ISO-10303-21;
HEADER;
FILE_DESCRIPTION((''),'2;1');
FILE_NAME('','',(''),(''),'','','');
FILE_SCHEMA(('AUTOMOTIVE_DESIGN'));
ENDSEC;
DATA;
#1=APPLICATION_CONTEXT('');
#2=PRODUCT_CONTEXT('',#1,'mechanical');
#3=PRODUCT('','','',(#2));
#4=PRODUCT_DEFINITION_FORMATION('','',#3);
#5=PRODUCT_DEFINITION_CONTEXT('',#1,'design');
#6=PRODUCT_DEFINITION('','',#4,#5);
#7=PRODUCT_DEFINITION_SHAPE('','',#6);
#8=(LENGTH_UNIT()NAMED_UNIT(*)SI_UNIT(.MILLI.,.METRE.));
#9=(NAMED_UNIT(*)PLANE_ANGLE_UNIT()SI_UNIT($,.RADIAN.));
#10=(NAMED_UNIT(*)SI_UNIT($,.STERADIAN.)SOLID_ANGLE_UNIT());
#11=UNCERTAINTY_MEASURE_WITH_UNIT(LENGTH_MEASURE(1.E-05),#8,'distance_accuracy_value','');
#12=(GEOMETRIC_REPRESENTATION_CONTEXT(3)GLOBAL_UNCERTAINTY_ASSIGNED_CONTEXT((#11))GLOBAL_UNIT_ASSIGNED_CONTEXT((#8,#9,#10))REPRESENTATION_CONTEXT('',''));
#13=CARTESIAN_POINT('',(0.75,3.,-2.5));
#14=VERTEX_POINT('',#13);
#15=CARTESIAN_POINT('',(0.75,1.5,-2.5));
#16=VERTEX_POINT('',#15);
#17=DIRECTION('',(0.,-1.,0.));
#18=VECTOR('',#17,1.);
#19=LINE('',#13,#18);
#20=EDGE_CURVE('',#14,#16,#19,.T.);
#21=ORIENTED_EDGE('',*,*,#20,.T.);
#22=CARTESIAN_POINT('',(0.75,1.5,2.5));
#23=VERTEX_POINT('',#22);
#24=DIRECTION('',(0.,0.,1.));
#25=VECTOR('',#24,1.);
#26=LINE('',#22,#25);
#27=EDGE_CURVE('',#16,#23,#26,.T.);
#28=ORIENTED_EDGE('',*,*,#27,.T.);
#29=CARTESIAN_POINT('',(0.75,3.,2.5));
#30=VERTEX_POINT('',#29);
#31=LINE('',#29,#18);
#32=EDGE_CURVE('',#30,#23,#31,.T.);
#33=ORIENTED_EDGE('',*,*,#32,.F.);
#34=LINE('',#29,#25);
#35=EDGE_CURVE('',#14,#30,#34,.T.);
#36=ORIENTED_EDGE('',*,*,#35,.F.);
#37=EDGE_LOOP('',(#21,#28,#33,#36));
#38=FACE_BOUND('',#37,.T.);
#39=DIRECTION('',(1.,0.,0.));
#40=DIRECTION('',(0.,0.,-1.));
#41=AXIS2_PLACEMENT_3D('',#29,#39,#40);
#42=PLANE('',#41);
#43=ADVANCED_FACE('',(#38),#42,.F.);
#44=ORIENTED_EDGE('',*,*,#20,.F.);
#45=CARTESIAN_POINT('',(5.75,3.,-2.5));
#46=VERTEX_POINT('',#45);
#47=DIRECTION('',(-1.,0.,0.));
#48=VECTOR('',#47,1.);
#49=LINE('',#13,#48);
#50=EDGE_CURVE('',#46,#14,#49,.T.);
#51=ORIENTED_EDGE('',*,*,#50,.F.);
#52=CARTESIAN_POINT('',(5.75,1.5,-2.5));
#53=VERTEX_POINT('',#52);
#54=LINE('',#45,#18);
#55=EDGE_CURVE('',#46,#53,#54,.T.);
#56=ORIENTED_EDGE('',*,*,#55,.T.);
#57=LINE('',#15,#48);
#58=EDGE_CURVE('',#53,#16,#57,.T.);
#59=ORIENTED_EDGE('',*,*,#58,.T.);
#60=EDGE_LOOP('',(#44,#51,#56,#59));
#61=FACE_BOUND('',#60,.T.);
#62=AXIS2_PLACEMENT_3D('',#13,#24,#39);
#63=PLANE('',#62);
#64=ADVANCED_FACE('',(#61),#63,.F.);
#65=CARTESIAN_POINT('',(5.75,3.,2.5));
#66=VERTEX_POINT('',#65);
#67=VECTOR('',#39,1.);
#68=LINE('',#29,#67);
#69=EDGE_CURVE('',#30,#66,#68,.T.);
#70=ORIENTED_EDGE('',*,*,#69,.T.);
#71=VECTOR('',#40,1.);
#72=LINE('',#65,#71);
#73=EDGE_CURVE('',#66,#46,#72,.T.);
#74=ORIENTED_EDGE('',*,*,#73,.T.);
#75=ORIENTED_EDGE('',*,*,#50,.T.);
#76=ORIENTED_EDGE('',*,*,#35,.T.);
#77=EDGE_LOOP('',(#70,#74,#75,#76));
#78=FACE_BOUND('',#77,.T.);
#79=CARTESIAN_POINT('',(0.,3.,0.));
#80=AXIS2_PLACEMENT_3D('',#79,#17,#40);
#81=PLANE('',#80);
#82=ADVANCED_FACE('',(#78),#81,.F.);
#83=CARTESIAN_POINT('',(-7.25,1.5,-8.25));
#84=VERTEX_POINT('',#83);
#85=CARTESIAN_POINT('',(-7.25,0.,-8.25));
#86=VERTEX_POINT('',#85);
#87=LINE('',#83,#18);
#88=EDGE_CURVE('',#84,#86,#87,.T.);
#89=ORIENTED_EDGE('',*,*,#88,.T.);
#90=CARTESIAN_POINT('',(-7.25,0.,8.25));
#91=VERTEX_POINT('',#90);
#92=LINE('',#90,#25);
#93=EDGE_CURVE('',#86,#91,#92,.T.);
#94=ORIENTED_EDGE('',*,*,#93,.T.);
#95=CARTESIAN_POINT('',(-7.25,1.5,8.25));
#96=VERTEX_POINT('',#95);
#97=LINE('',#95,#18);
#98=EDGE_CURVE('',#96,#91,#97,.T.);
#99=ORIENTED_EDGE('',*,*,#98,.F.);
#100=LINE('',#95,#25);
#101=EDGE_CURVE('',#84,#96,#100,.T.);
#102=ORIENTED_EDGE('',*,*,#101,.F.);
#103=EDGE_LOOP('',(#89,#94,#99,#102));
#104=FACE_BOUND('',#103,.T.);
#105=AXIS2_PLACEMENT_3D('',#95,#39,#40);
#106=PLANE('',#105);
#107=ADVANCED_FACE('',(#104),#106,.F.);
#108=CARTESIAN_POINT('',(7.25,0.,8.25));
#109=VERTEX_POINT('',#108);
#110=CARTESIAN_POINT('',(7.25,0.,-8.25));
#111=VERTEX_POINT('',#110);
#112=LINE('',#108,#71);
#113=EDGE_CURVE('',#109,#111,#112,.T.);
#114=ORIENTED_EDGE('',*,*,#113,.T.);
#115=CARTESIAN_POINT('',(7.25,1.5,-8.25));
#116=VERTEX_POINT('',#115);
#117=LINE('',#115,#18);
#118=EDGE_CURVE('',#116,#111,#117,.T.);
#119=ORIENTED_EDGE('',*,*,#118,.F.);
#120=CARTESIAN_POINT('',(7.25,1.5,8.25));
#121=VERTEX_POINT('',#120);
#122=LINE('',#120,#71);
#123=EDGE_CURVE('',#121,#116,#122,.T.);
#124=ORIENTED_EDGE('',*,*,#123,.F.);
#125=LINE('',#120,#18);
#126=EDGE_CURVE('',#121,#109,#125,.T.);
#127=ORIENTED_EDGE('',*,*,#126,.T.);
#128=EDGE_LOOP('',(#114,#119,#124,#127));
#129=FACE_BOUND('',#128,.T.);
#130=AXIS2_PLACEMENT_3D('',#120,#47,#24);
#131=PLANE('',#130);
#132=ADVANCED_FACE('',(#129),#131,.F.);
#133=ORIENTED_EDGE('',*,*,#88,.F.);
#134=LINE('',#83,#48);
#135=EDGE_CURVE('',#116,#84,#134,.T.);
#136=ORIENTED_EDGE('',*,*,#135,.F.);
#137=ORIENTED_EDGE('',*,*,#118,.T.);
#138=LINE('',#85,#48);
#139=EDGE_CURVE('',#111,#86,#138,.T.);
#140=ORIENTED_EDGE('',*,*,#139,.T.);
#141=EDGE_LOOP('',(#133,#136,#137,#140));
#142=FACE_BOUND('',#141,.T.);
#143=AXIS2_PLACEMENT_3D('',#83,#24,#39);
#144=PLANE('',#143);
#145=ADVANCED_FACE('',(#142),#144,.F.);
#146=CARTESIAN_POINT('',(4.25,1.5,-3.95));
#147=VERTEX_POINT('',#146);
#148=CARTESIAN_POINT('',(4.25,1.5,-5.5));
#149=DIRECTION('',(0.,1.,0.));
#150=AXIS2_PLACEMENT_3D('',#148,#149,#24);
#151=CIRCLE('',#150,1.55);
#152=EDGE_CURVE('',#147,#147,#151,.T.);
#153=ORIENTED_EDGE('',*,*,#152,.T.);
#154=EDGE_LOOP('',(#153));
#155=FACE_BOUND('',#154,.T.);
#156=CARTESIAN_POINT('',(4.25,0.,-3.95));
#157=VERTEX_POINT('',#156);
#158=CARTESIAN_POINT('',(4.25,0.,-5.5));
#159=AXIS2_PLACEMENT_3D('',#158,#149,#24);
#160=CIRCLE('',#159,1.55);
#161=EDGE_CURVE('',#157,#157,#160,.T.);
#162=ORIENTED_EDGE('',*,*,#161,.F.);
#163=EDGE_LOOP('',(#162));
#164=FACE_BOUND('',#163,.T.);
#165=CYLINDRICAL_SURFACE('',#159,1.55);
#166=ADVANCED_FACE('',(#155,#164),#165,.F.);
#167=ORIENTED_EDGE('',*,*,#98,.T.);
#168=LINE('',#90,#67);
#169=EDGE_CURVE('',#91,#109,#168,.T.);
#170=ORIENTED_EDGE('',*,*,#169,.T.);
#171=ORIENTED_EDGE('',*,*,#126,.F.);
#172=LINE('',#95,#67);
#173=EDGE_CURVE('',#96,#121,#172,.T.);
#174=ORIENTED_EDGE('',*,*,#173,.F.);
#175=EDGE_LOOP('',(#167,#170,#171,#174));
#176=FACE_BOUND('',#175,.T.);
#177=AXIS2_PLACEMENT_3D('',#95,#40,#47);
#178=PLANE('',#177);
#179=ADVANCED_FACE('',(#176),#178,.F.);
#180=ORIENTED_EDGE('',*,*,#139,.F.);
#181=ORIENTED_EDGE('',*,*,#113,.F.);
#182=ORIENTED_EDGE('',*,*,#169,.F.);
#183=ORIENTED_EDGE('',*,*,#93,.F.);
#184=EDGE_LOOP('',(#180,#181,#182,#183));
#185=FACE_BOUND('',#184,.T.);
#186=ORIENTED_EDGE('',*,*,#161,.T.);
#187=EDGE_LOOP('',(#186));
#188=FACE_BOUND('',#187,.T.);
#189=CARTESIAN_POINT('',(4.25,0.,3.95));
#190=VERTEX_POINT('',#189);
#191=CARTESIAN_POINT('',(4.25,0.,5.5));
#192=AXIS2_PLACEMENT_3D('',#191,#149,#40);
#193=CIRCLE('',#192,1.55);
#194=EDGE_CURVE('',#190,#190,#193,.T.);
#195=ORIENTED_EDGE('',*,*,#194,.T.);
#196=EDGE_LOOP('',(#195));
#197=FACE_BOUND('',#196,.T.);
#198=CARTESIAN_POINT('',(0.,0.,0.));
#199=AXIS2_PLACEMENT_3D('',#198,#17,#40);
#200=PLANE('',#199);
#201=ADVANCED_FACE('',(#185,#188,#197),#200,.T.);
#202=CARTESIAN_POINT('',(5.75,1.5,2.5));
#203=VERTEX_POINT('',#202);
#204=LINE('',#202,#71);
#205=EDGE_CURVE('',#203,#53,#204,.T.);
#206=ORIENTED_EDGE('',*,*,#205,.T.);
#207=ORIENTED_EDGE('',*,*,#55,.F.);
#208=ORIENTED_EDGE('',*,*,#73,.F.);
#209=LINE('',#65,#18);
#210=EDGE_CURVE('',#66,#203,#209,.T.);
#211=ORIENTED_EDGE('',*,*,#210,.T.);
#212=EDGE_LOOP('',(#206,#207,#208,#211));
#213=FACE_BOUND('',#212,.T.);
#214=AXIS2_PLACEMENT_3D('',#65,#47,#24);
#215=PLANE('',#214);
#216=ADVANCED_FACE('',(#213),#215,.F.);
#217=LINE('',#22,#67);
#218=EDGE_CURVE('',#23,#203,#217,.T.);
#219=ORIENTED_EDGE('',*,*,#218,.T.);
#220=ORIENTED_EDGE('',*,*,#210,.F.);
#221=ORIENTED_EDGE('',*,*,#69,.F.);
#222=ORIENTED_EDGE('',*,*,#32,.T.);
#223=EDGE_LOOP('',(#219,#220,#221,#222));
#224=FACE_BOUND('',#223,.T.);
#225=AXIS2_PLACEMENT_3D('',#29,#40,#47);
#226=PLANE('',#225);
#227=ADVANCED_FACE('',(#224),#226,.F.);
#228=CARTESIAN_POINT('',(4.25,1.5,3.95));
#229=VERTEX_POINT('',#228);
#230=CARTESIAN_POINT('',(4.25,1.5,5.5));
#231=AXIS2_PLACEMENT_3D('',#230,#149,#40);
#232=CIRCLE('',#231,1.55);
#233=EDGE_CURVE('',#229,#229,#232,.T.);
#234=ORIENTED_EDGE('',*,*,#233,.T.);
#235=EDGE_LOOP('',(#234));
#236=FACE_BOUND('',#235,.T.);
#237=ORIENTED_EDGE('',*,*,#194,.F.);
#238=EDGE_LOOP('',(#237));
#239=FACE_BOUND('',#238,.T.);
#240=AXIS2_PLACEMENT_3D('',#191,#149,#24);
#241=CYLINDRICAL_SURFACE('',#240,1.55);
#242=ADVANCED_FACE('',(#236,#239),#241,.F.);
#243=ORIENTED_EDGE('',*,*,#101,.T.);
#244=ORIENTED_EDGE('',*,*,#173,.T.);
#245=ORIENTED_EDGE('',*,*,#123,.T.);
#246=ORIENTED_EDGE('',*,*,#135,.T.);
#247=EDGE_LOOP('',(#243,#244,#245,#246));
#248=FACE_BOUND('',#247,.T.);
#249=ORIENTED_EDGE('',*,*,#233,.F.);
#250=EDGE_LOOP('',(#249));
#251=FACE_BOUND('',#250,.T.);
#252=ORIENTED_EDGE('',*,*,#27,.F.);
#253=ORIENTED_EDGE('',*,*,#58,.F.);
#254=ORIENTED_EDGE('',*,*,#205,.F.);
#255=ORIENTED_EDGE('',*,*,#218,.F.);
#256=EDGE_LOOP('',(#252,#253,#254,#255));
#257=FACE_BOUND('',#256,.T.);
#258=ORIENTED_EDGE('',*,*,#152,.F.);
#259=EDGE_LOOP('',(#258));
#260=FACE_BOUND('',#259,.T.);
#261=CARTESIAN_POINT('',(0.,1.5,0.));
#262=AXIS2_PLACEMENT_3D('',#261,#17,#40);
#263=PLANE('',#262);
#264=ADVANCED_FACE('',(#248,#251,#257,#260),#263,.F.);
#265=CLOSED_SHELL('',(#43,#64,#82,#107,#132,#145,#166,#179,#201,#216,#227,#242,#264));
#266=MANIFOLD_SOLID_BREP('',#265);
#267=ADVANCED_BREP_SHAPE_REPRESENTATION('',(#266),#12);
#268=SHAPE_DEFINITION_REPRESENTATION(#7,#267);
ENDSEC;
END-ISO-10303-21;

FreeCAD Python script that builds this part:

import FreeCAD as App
import Part
import Sketcher

V = App.Vector


def add_polygon(sketch, points):
    """Adds a closed chain of lines whose ends are joined by coincident constraints."""
    first, n = sketch.GeometryCount, len(points)
    for a, b in zip(points, points[1:] + points[:1]):
        sketch.addGeometry(Part.LineSegment(App.Vector(*a, 0), App.Vector(*b, 0)), False)
    for i in range(n):
        sketch.addConstraint(Sketcher.Constraint("Coincident", first + i, 2, first + (i + 1) % n, 1))

doc = App.newDocument("Part")
params = doc.addObject("Spreadsheet::Sheet", "Params")
for row, (alias, value) in enumerate([
    ("sketch1_width", "14.5 mm"),
    ("sketch1_height", "16.5 mm"),
    ("pad1_length", "1.5 mm"),
    ("sketch2_diameter", "3.1 mm"),
    ("sketch3_width", "5 mm"),
    ("pad2_length", "1.5 mm"),
], start=1):
    params.set(f"A{row}", alias)
    params.set(f"B{row}", "=" + value)
    params.setAlias(f"B{row}", alias)

body = doc.addObject("PartDesign::Body", "Body")

# Sketch on XZ plane
sketch1 = doc.addObject("Sketcher::SketchObject", "Sketch")
body.addObject(sketch1)
sketch1.AttachmentSupport = (doc.XZ_Plane, [""])
sketch1.MapMode = "FlatFace"
add_polygon(sketch1, [(-7, -8), (-7, 8), (7, 8), (7, -8)])  # lines 0-3
sketch1.addConstraint([
    Sketcher.Constraint("Vertical", 0),
    Sketcher.Constraint("Horizontal", 1),
    Sketcher.Constraint("Vertical", 2),
    Sketcher.Constraint("Horizontal", 3),
    Sketcher.Constraint("Symmetric", 0, 2, 2, 2, -1, 1),
    Sketcher.Constraint("DistanceX", 1, 1, 1, 2, 14.5),
    Sketcher.Constraint("DistanceY", 0, 1, 0, 2, 16.5),
])
sketch1.setExpression("Constraints[9]", "Params.sketch1_width")
sketch1.setExpression("Constraints[10]", "Params.sketch1_height")
pad1 = doc.addObject("PartDesign::Pad", "Pad")
body.addObject(pad1)
pad1.Profile = sketch1
pad1.setExpression("Length", "Params.pad1_length")
pad1.Reversed = True

# Sketch on XZ plane
sketch2 = doc.addObject("Sketcher::SketchObject", "Sketch001")
body.addObject(sketch2)
sketch2.AttachmentSupport = (doc.XZ_Plane, [""])
sketch2.MapMode = "FlatFace"
sketch2.AttachmentOffset = App.Placement(V(0, 0, -1.5), App.Rotation())
sketch2.addGeometry([
    Part.Circle(V(4.2, -5.5, 0), V(0, 0, 1), 1.6),
    Part.Circle(V(4.2, 5.5, 0), V(0, 0, 1), 1.6),
], False)
sketch2.addConstraint([
    Sketcher.Constraint("Equal", 0, 1),
    Sketcher.Constraint("Symmetric", 0, 3, 1, 3, -1),
    Sketcher.Constraint("Diameter", 0, 3.1),
    Sketcher.Constraint("DistanceY", 0, 3, 1, 3, 11.0),
    Sketcher.Constraint("DistanceX", -1, 1, 0, 3, 4.25),
])
sketch2.setExpression("Constraints[2]", "Params.sketch2_diameter")
pocket1 = doc.addObject("PartDesign::Pocket", "Pocket")
body.addObject(pocket1)
pocket1.Profile = sketch2
pocket1.Type = "ThroughAll"
pocket1.Reversed = True

# Sketch on XZ plane
sketch3 = doc.addObject("Sketcher::SketchObject", "Sketch002")
body.addObject(sketch3)
sketch3.AttachmentSupport = (doc.XZ_Plane, [""])
sketch3.MapMode = "FlatFace"
sketch3.AttachmentOffset = App.Placement(V(0, 0, -1.5), App.Rotation())
add_polygon(sketch3, [(1, -2), (1, 2), (6, 2), (6, -2)])  # lines 0-3
sketch3.addConstraint([
    Sketcher.Constraint("Vertical", 0),
    Sketcher.Constraint("Horizontal", 1),
    Sketcher.Constraint("Vertical", 2),
    Sketcher.Constraint("Horizontal", 3),
    Sketcher.Constraint("Equal", 3, 0),
    Sketcher.Constraint("DistanceX", 1, 1, 1, 2, 5.0),
    Sketcher.Constraint("DistanceY", -1, 1, 0, 2, 2.5),
    Sketcher.Constraint("DistanceX", -1, 1, 0, 2, 0.75),
])
sketch3.setExpression("Constraints[9]", "Params.sketch3_width")
pad2 = doc.addObject("PartDesign::Pad", "Pad001")
body.addObject(pad2)
pad2.Profile = sketch3
pad2.setExpression("Length", "Params.pad2_length")
pad2.Reversed = True

doc.recompute()
